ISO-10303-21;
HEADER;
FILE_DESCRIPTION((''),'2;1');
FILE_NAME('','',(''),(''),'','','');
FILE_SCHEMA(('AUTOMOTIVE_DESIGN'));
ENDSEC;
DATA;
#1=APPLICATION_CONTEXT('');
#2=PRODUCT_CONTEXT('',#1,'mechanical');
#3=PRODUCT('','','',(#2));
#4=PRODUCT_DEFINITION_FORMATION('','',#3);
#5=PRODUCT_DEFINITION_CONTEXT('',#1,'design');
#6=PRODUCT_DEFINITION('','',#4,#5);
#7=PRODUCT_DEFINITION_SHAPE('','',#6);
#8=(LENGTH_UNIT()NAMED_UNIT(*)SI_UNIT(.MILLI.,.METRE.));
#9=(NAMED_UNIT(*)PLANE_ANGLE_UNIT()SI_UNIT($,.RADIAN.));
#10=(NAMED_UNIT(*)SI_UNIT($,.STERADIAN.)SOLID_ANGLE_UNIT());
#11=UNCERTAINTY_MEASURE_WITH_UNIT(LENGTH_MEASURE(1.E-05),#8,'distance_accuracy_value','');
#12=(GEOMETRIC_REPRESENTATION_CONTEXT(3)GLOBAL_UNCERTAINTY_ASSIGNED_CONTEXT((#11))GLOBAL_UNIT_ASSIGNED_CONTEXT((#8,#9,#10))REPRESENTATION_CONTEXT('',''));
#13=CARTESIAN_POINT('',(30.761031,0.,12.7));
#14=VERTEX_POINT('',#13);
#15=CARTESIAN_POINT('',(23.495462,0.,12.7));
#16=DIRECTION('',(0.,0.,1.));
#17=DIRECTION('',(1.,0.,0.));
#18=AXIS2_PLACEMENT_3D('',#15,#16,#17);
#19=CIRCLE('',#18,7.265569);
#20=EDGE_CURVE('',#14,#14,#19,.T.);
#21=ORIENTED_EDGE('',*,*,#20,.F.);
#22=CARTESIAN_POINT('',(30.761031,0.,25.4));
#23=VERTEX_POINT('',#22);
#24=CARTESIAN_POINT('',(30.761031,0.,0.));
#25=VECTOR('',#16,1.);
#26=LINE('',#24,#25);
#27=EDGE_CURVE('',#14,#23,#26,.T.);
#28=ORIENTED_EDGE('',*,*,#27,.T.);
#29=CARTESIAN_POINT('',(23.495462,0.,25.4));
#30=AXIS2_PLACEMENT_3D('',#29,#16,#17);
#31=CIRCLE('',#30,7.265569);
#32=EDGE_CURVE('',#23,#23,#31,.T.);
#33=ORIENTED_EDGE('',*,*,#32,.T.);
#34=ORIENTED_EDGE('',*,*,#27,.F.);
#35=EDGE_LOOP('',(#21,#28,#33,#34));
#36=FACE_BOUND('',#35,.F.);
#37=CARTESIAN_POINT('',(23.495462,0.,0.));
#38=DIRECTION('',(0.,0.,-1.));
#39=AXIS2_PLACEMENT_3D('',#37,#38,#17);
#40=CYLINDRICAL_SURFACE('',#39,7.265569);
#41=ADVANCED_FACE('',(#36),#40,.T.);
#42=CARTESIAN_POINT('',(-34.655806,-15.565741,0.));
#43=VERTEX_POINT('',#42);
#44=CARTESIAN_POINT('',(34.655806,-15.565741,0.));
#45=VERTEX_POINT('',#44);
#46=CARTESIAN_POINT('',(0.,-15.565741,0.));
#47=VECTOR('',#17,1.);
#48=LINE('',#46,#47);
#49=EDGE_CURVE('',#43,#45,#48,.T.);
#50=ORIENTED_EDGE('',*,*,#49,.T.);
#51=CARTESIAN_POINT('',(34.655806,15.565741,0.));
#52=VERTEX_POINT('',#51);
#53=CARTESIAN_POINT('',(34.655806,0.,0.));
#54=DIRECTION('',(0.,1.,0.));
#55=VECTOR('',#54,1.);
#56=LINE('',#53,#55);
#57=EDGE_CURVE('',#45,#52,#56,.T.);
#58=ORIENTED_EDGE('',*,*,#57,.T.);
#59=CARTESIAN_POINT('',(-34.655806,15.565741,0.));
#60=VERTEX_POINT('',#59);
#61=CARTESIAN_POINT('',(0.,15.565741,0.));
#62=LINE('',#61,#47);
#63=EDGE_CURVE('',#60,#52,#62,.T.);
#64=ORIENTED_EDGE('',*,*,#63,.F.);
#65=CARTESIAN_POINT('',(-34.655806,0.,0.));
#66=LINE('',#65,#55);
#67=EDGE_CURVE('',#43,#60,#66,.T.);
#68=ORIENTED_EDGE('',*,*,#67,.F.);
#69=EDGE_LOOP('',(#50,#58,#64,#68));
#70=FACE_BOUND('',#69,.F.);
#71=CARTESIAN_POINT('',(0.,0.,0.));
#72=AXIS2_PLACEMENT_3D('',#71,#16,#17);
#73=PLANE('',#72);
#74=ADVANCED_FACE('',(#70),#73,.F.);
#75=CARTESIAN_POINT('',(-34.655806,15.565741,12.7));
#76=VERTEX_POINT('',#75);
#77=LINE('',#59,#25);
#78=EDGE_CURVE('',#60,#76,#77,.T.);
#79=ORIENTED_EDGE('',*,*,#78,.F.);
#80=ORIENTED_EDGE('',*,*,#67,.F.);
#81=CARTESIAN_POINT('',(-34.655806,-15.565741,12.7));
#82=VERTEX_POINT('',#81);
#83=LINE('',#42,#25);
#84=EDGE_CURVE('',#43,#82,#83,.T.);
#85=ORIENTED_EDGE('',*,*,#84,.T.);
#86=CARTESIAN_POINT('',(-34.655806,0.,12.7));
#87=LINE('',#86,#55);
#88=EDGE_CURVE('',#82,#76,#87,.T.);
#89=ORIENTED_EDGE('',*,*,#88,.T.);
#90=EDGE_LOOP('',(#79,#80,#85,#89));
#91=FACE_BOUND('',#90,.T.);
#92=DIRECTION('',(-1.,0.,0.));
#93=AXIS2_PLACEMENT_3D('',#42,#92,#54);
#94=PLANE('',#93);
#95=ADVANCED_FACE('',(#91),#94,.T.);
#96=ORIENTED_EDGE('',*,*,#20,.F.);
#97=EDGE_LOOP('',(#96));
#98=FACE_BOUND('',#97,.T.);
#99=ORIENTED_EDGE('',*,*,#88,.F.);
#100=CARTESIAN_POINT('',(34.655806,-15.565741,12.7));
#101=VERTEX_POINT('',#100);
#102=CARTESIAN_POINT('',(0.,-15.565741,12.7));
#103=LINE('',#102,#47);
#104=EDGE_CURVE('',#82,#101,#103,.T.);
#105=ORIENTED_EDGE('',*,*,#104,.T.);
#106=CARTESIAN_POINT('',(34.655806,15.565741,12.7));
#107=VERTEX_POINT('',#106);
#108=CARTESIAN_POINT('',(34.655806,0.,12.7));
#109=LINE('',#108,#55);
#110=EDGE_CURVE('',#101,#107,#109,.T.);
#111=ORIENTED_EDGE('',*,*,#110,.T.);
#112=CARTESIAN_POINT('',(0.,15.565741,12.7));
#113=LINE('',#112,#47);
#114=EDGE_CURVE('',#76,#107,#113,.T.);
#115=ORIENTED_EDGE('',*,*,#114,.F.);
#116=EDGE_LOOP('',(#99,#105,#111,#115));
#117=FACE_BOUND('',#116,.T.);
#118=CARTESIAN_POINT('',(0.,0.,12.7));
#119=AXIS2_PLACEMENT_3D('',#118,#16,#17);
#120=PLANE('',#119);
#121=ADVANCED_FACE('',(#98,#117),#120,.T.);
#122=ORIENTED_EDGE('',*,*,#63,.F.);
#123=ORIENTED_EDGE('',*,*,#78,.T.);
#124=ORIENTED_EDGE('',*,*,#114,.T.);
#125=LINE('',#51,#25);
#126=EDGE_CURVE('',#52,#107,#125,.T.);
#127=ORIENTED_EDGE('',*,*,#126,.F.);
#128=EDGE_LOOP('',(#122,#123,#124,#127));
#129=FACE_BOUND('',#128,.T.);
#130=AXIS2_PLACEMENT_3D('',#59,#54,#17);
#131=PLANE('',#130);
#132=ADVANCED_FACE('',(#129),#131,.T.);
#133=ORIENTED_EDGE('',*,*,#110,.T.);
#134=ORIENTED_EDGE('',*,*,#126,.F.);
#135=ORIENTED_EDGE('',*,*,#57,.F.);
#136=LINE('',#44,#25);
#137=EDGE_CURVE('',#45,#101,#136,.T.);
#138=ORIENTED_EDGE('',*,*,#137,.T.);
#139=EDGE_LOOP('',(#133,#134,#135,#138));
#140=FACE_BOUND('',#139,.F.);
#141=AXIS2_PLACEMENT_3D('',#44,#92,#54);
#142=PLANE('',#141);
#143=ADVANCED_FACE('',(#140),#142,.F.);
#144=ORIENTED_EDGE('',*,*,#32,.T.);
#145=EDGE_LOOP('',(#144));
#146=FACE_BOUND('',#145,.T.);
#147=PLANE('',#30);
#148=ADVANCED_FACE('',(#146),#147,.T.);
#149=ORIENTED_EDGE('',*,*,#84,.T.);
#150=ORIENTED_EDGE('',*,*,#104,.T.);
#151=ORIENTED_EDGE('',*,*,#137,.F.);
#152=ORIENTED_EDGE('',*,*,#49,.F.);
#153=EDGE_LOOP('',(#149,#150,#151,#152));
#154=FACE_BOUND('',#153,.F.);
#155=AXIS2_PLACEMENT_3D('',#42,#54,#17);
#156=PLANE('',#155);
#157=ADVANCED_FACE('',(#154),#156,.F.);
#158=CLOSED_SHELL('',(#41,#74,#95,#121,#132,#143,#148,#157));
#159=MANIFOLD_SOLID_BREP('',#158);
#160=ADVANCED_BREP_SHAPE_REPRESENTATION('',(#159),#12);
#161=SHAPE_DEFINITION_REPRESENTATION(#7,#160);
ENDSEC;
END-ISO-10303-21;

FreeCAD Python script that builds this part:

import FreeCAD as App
import Part
import Sketcher
Q = App.Units.Quantity

doc = App.newDocument("Part")
body = doc.addObject("PartDesign::Body", "Body")

# Sketch on XY plane
sketch1 = body.newObject("Sketcher::SketchObject", "Sketch")
sketch1.AttachmentSupport = (doc.getObject("XY_Plane"), [""])
sketch1.MapMode = "FlatFace"
sketch1.addGeometry(Part.Circle(App.Vector(23, 0, 0), App.Vector(0, 0, 1), 7), False)
sketch1.addConstraint([
    Sketcher.Constraint("PointOnObject", 0, 3, -1),
    Sketcher.Constraint("Diameter", 0, 14.531138),
    Sketcher.Constraint("DistanceX", -1, 1, 0, 3, 23.495462),
])
pad1 = body.newObject("PartDesign::Pad", "Pad")
pad1.Profile = sketch1
pad1.Length = Q("1 in")

# Sketch on XY plane
sketch2 = body.newObject("Sketcher::SketchObject", "Sketch001")
sketch2.AttachmentSupport = (doc.getObject("XY_Plane"), [""])
sketch2.MapMode = "FlatFace"
sketch2.addGeometry([
    Part.LineSegment(App.Vector(-35, 16, 0), App.Vector(-35, -16, 0)),  # 0
    Part.LineSegment(App.Vector(-35, -16, 0), App.Vector(35, -16, 0)),  # 1
    Part.LineSegment(App.Vector(35, -16, 0), App.Vector(35, 16, 0)),  # 2
    Part.LineSegment(App.Vector(35, 16, 0), App.Vector(-35, 16, 0)),  # 3
    Part.Circle(App.Vector(23, 0, 0), App.Vector(0, 0, 1), 7),  # 4
], False)
sketch2.addConstraint([
    Sketcher.Constraint("Coincident", 0, 2, 1, 1),
    Sketcher.Constraint("Coincident", 1, 2, 2, 1),
    Sketcher.Constraint("Coincident", 2, 2, 3, 1),
    Sketcher.Constraint("Coincident", 3, 2, 0, 1),
    Sketcher.Constraint("Vertical", 0),
    Sketcher.Constraint("Horizontal", 1),
    Sketcher.Constraint("Vertical", 2),
    Sketcher.Constraint("Horizontal", 3),
    Sketcher.Constraint("Symmetric", 0, 2, 2, 2, -1, 1),
    Sketcher.Constraint("PointOnObject", 4, 3, -1),
    Sketcher.Constraint("Diameter", 4, 14.531138),
    Sketcher.Constraint("DistanceX", 1, 1, 1, 2, 69.311612),
    Sketcher.Constraint("DistanceY", 0, 2, 0, 1, 31.131482),
    Sketcher.Constraint("DistanceX", -1, 1, 4, 3, 23.495462),
])
pad2 = body.newObject("PartDesign::Pad", "Pad001")
pad2.Profile = sketch2
pad2.Length = Q("0.5 in")

doc.recompute()
